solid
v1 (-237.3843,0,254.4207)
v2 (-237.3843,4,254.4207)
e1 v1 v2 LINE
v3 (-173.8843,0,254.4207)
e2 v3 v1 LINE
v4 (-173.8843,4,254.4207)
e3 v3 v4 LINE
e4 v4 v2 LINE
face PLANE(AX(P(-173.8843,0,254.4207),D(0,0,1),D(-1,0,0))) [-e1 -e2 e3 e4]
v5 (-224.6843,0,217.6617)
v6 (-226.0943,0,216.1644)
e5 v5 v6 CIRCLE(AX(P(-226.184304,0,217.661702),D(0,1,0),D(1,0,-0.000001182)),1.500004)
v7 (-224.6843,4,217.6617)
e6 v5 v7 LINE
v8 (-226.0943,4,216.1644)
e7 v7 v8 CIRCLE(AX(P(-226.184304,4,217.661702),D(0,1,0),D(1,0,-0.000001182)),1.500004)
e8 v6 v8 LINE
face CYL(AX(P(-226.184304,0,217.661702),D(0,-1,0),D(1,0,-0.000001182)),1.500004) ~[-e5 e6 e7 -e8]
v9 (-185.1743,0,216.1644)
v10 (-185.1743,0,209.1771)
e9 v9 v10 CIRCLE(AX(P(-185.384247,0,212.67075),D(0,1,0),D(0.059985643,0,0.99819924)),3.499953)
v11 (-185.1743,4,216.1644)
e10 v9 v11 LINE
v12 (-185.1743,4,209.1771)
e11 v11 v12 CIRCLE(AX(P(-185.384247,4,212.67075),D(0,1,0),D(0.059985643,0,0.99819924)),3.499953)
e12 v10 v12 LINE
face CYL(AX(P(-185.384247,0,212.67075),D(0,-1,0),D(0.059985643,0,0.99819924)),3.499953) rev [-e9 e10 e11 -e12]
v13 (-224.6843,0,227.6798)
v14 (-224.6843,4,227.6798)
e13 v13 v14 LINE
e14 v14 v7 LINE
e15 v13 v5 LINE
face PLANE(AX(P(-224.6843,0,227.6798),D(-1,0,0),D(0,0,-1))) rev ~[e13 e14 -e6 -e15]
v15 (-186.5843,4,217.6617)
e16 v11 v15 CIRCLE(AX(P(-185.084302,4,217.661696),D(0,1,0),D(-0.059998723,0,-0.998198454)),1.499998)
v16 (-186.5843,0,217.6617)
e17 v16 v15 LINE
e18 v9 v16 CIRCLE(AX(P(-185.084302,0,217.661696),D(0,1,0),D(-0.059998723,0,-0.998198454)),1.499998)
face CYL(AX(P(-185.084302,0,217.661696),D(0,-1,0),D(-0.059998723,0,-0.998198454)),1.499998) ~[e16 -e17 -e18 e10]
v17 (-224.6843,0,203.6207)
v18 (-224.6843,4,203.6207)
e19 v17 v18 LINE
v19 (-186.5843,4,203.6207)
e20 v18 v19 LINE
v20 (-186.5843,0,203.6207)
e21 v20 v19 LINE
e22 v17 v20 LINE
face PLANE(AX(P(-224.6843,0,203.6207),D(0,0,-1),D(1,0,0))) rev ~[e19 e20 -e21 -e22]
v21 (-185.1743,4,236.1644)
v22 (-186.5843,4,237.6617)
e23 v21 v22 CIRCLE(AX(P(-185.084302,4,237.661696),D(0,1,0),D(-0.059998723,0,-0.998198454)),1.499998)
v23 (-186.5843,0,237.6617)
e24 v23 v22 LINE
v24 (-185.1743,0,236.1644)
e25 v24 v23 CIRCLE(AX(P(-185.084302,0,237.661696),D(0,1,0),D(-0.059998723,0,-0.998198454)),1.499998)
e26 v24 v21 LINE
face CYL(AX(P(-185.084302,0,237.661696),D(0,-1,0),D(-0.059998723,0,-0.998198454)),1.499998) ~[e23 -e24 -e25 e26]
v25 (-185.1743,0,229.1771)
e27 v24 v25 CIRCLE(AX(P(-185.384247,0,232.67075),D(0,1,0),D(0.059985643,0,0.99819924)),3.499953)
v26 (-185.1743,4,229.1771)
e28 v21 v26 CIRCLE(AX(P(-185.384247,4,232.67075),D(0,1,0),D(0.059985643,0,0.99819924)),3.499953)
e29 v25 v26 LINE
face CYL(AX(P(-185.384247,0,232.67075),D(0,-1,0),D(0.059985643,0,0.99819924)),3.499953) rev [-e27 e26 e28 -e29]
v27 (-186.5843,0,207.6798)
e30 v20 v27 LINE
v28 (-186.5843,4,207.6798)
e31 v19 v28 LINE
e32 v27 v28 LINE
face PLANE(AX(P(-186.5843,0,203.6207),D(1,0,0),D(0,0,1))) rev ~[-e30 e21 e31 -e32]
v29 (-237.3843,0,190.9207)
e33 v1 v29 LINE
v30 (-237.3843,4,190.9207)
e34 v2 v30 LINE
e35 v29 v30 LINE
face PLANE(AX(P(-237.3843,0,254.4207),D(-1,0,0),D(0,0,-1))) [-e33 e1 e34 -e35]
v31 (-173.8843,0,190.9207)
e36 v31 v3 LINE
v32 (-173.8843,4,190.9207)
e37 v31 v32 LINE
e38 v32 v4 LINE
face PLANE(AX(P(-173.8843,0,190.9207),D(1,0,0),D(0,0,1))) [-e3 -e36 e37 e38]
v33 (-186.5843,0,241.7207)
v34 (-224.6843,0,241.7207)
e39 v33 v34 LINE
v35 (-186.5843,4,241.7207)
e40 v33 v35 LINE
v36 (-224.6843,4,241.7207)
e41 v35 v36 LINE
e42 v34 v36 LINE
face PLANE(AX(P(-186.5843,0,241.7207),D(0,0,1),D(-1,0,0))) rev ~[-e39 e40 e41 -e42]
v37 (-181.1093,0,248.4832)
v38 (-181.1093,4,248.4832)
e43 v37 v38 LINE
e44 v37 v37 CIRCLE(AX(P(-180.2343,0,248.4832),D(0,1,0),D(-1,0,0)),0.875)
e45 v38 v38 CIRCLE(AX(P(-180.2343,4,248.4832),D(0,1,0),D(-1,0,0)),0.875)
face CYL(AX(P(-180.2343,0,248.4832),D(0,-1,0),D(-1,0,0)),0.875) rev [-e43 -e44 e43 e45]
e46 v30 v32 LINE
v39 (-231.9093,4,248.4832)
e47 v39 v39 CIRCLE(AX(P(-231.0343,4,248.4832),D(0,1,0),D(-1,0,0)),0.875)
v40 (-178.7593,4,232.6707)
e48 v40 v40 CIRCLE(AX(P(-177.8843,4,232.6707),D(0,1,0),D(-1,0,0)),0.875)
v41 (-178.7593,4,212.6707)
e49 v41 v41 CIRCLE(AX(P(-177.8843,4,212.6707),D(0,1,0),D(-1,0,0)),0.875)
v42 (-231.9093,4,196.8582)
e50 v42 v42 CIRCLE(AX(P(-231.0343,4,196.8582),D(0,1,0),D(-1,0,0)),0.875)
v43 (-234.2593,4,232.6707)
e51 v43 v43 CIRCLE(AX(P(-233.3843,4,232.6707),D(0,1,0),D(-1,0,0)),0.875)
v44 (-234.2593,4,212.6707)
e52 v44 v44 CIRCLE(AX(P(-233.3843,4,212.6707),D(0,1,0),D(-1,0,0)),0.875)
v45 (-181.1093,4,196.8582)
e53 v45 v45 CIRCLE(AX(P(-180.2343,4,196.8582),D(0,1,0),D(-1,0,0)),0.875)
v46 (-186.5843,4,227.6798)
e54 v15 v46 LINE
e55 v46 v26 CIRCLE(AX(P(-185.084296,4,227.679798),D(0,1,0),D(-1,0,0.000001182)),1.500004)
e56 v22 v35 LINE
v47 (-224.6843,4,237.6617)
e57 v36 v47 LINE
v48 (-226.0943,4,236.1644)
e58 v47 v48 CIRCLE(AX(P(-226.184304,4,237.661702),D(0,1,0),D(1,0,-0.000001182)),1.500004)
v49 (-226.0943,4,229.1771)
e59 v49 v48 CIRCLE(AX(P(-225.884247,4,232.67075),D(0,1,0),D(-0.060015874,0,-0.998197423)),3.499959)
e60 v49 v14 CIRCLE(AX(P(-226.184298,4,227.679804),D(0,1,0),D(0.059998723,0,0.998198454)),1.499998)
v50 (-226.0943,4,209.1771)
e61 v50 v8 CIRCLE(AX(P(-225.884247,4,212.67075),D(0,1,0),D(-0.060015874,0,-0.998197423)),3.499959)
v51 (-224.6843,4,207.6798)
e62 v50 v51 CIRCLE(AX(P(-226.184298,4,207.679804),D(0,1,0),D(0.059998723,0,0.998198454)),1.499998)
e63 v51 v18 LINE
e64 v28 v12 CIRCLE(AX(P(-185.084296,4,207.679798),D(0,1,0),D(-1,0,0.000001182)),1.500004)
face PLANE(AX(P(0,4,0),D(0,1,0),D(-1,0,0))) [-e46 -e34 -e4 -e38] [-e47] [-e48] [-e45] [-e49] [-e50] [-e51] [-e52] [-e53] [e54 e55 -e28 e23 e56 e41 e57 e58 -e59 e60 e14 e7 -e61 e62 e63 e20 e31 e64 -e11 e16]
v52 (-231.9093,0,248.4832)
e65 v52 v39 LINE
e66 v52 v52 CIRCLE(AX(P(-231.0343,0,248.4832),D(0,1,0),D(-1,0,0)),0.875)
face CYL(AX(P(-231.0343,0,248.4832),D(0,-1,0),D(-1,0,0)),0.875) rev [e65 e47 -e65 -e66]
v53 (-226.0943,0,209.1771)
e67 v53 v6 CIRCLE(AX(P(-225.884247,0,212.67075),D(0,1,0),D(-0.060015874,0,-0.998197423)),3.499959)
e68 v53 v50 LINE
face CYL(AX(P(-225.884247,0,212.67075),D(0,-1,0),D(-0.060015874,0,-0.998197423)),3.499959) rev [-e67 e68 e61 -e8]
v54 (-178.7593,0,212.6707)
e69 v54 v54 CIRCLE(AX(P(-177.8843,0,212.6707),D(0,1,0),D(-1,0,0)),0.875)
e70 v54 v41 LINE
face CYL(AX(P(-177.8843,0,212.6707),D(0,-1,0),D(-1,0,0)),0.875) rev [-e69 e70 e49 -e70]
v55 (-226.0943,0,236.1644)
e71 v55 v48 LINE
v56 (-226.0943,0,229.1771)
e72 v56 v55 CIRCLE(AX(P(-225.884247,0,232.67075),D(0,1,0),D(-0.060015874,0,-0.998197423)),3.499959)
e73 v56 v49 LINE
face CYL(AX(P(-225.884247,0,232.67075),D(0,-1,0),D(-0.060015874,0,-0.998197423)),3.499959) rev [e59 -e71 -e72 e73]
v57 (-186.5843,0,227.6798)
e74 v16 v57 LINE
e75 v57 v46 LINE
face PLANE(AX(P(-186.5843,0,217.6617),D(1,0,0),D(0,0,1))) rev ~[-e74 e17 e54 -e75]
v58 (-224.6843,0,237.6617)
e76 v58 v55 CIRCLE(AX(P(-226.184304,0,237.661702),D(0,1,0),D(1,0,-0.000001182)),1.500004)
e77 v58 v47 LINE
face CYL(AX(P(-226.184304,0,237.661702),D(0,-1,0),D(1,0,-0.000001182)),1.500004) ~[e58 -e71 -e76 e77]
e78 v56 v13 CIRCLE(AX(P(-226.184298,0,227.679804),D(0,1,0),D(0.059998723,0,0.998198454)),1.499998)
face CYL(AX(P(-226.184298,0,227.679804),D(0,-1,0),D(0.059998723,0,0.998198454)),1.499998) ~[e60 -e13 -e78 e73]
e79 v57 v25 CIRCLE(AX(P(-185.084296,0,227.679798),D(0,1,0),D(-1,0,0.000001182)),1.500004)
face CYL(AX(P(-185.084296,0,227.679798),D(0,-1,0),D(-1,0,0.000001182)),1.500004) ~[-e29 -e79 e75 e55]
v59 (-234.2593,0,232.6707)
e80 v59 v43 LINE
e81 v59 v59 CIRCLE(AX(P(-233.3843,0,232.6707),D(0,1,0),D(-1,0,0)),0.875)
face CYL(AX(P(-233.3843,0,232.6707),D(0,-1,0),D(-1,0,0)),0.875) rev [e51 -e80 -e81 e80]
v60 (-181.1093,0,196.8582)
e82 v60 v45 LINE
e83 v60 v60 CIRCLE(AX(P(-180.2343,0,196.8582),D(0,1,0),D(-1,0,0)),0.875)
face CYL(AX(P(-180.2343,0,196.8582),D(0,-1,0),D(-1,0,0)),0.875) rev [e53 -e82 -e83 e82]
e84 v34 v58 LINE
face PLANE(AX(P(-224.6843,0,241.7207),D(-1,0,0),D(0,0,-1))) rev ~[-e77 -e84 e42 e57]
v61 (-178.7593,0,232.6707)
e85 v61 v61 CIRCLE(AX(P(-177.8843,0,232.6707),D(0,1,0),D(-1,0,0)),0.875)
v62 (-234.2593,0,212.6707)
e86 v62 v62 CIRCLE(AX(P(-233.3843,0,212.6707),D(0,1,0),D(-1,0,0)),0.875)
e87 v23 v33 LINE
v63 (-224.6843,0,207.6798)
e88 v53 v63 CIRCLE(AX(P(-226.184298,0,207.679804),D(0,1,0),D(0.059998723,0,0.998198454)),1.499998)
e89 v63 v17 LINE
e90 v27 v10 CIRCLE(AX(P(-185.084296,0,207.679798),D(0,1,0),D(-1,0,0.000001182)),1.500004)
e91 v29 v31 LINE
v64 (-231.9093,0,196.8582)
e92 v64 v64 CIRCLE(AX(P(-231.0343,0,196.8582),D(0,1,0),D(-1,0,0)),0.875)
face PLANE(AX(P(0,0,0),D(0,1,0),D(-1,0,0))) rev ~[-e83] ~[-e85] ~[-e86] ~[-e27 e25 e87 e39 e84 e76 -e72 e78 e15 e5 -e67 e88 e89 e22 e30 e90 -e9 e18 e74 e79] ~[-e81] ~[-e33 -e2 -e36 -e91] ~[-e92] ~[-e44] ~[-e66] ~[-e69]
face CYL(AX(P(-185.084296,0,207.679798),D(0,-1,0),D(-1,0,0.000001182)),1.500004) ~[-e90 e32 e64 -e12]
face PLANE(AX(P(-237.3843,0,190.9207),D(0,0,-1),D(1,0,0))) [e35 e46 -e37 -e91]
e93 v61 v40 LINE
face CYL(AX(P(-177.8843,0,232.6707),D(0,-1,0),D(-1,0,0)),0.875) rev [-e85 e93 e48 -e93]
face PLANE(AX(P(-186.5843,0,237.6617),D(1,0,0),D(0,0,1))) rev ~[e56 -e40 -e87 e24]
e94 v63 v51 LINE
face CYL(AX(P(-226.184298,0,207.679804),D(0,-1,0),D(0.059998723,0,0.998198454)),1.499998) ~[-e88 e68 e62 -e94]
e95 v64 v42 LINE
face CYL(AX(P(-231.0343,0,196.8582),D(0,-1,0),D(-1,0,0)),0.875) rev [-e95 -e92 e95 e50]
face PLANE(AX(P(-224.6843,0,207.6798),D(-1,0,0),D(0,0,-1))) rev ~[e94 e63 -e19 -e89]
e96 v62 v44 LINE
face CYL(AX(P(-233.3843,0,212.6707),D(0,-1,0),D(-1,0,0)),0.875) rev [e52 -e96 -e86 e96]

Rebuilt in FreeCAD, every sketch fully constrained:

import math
import FreeCAD as App
import Part
import Sketcher
from FreeCAD import Vector
Q = App.Units.Quantity

doc = App.newDocument("Part")
params = doc.addObject("Spreadsheet::Sheet", "Params")
for row, (alias, value) in enumerate([
    ("sketch1_width", "2.5 in"),
    ("sketch1_width2", "1.5 in"),
    ("pad1_length", "4 mm"),
], start=1):
    params.set(f"A{row}", alias)
    params.set(f"B{row}", "=" + value)
    params.setAlias(f"B{row}", alias)

body = doc.addObject("PartDesign::Body", "Body")

# Sketch on XZ plane
sketch1 = doc.addObject("Sketcher::SketchObject", "Sketch")
body.addObject(sketch1)
sketch1.AttachmentSupport = (doc.XZ_Plane, [""])
sketch1.MapMode = "FlatFace"
sketch1.addGeometry(Part.LineSegment(Vector(-237.4, 254.4, 0), Vector(-173.9, 254.4, 0)), False)
sketch1.addGeometry(Part.LineSegment(Vector(-173.9, 254.4, 0), Vector(-173.9, 190.9, 0)), False)
sketch1.addGeometry(Part.LineSegment(Vector(-173.9, 190.9, 0), Vector(-237.4, 190.9, 0)), False)
sketch1.addGeometry(Part.LineSegment(Vector(-237.4, 190.9, 0), Vector(-237.4, 254.4, 0)), False)
sketch1.addGeometry(Part.Circle(Vector(-180.2, 196.9, 0), Vector(0, 0, 1), 0.9), False)
sketch1.addGeometry(Part.Circle(Vector(-177.9, 212.7, 0), Vector(0, 0, 1), 0.9), False)
sketch1.addGeometry(Part.Circle(Vector(-231, 196.9, 0), Vector(0, 0, 1), 0.9), False)
sketch1.addGeometry(Part.Circle(Vector(-233.4, 212.7, 0), Vector(0, 0, 1), 0.9), False)
sketch1.addGeometry(Part.Circle(Vector(-177.9, 232.7, 0), Vector(0, 0, 1), 0.9), False)
sketch1.addGeometry(Part.Circle(Vector(-180.2, 248.5, 0), Vector(0, 0, 1), 0.9), False)
sketch1.addGeometry(Part.LineSegment(Vector(-224.7, 207.7, 0), Vector(-224.7, 203.6, 0)), False)
sketch1.addGeometry(Part.LineSegment(Vector(-224.7, 203.6, 0), Vector(-186.6, 203.6, 0)), False)
sketch1.addGeometry(Part.LineSegment(Vector(-186.6, 203.6, 0), Vector(-186.6, 207.7, 0)), False)
sketch1.addGeometry(Part.ArcOfCircle(Part.Circle(Vector(-185.1, 207.7, 0), Vector(0, 0, 1), 1.5), math.radians(93), math.radians(180)), False)
sketch1.addGeometry(Part.ArcOfCircle(Part.Circle(Vector(-185.4, 212.7, 0), Vector(0, 0, 1), 3.5), math.radians(-87), math.radians(87)), False)
sketch1.addGeometry(Part.ArcOfCircle(Part.Circle(Vector(-185.1, 217.7, 0), Vector(0, 0, 1), 1.5), math.radians(180), math.radians(267)), False)
sketch1.addGeometry(Part.LineSegment(Vector(-186.6, 217.7, 0), Vector(-186.6, 227.7, 0)), False)
sketch1.addGeometry(Part.ArcOfCircle(Part.Circle(Vector(-185.1, 227.7, 0), Vector(0, 0, 1), 1.5), math.radians(93), math.radians(180)), False)
sketch1.addGeometry(Part.ArcOfCircle(Part.Circle(Vector(-185.4, 232.7, 0), Vector(0, 0, 1), 3.5), math.radians(-87), math.radians(87)), False)
sketch1.addGeometry(Part.ArcOfCircle(Part.Circle(Vector(-185.1, 237.7, 0), Vector(0, 0, 1), 1.5), math.radians(180), math.radians(267)), False)
sketch1.addGeometry(Part.LineSegment(Vector(-186.6, 237.7, 0), Vector(-186.6, 241.7, 0)), False)
sketch1.addGeometry(Part.LineSegment(Vector(-186.6, 241.7, 0), Vector(-224.7, 241.7, 0)), False)
sketch1.addGeometry(Part.LineSegment(Vector(-224.7, 241.7, 0), Vector(-224.7, 237.7, 0)), False)
sketch1.addGeometry(Part.ArcOfCircle(Part.Circle(Vector(-226.2, 237.7, 0), Vector(0, 0, 1), 1.5), math.radians(-87), math.radians(0)), False)
sketch1.addGeometry(Part.ArcOfCircle(Part.Circle(Vector(-225.9, 232.7, 0), Vector(0, 0, 1), 3.5), math.radians(93), math.radians(267)), False)
sketch1.addGeometry(Part.ArcOfCircle(Part.Circle(Vector(-226.2, 227.7, 0), Vector(0, 0, 1), 1.5), math.radians(0), math.radians(87)), False)
sketch1.addGeometry(Part.LineSegment(Vector(-224.7, 227.7, 0), Vector(-224.7, 217.7, 0)), False)
sketch1.addGeometry(Part.ArcOfCircle(Part.Circle(Vector(-226.2, 217.7, 0), Vector(0, 0, 1), 1.5), math.radians(-87), math.radians(0)), False)
sketch1.addGeometry(Part.ArcOfCircle(Part.Circle(Vector(-225.9, 212.7, 0), Vector(0, 0, 1), 3.5), math.radians(93), math.radians(267)), False)
sketch1.addGeometry(Part.ArcOfCircle(Part.Circle(Vector(-226.2, 207.7, 0), Vector(0, 0, 1), 1.5), math.radians(0), math.radians(87)), False)
sketch1.addGeometry(Part.Circle(Vector(-233.4, 232.7, 0), Vector(0, 0, 1), 0.9), False)
sketch1.addGeometry(Part.Circle(Vector(-231, 248.5, 0), Vector(0, 0, 1), 0.9), False)
sketch1.addConstraint(Sketcher.Constraint("Coincident", 0, 2, 1, 1))
sketch1.addConstraint(Sketcher.Constraint("Coincident", 1, 2, 2, 1))
sketch1.addConstraint(Sketcher.Constraint("Coincident", 2, 2, 3, 1))
sketch1.addConstraint(Sketcher.Constraint("Coincident", 3, 2, 0, 1))
sketch1.addConstraint(Sketcher.Constraint("Coincident", 10, 2, 11, 1))
sketch1.addConstraint(Sketcher.Constraint("Coincident", 11, 2, 12, 1))
sketch1.addConstraint(Sketcher.Constraint("Tangent", 12, 2, 13, 2))
sketch1.addConstraint(Sketcher.Constraint("Tangent", 13, 1, 14, 1))
sketch1.addConstraint(Sketcher.Constraint("Tangent", 14, 2, 15, 2))
sketch1.addConstraint(Sketcher.Constraint("Tangent", 15, 1, 16, 1))
sketch1.addConstraint(Sketcher.Constraint("Tangent", 16, 2, 17, 2))
sketch1.addConstraint(Sketcher.Constraint("Tangent", 17, 1, 18, 1))
sketch1.addConstraint(Sketcher.Constraint("Tangent", 18, 2, 19, 2))
sketch1.addConstraint(Sketcher.Constraint("Tangent", 19, 1, 20, 1))
sketch1.addConstraint(Sketcher.Constraint("Coincident", 20, 2, 21, 1))
sketch1.addConstraint(Sketcher.Constraint("Coincident", 21, 2, 22, 1))
sketch1.addConstraint(Sketcher.Constraint("Tangent", 22, 2, 23, 2))
sketch1.addConstraint(Sketcher.Constraint("Tangent", 23, 1, 24, 1))
sketch1.addConstraint(Sketcher.Constraint("Tangent", 24, 2, 25, 2))
sketch1.addConstraint(Sketcher.Constraint("Tangent", 25, 1, 26, 1))
sketch1.addConstraint(Sketcher.Constraint("Tangent", 26, 2, 27, 2))
sketch1.addConstraint(Sketcher.Constraint("Tangent", 27, 1, 28, 1))
sketch1.addConstraint(Sketcher.Constraint("Tangent", 28, 2, 29, 2))
sketch1.addConstraint(Sketcher.Constraint("Tangent", 29, 1, 10, 1))
sketch1.addConstraint(Sketcher.Constraint("Horizontal", 0))
sketch1.addConstraint(Sketcher.Constraint("Vertical", 1))
sketch1.addConstraint(Sketcher.Constraint("Horizontal", 2))
sketch1.addConstraint(Sketcher.Constraint("Vertical", 3))
sketch1.addConstraint(Sketcher.Constraint("Vertical", 10))
sketch1.addConstraint(Sketcher.Constraint("Horizontal", 11))
sketch1.addConstraint(Sketcher.Constraint("Vertical", 12))
sketch1.addConstraint(Sketcher.Constraint("Vertical", 16))
sketch1.addConstraint(Sketcher.Constraint("Vertical", 20))
sketch1.addConstraint(Sketcher.Constraint("Horizontal", 21))
sketch1.addConstraint(Sketcher.Constraint("Vertical", 22))
sketch1.addConstraint(Sketcher.Constraint("Vertical", 26))
sketch1.addConstraint(Sketcher.Constraint("Equal", 4, 5))
sketch1.addConstraint(Sketcher.Constraint("Equal", 5, 6))
sketch1.addConstraint(Sketcher.Constraint("Equal", 6, 7))
sketch1.addConstraint(Sketcher.Constraint("Equal", 7, 8))
sketch1.addConstraint(Sketcher.Constraint("Equal", 8, 9))
sketch1.addConstraint(Sketcher.Constraint("Equal", 13, 15))
sketch1.addConstraint(Sketcher.Constraint("Equal", 15, 17))
sketch1.addConstraint(Sketcher.Constraint("Equal", 14, 18))
sketch1.addConstraint(Sketcher.Constraint("Equal", 17, 19))
sketch1.addConstraint(Sketcher.Constraint("Equal", 19, 23))
sketch1.addConstraint(Sketcher.Constraint("Equal", 18, 24))
sketch1.addConstraint(Sketcher.Constraint("Equal", 23, 25))
sketch1.addConstraint(Sketcher.Constraint("Equal", 25, 27))
sketch1.addConstraint(Sketcher.Constraint("Equal", 24, 28))
sketch1.addConstraint(Sketcher.Constraint("Equal", 27, 29))
sketch1.addConstraint(Sketcher.Constraint("Equal", 9, 30))
sketch1.addConstraint(Sketcher.Constraint("Equal", 30, 31))
sketch1.addConstraint(Sketcher.Constraint("Horizontal", 4, 3, 6, 3))
sketch1.addConstraint(Sketcher.Constraint("Horizontal", 5, 3, 7, 3))
sketch1.addConstraint(Sketcher.Constraint("Horizontal", 7, 3, 14, 3))
sketch1.addConstraint(Sketcher.Constraint("Horizontal", 8, 3, 18, 3))
sketch1.addConstraint(Sketcher.Constraint("Horizontal", 19, 3, 23, 3))
sketch1.addConstraint(Sketcher.Constraint("Horizontal", 18, 3, 24, 3))
sketch1.addConstraint(Sketcher.Constraint("Horizontal", 17, 3, 25, 3))
sketch1.addConstraint(Sketcher.Constraint("Horizontal", 15, 3, 27, 3))
sketch1.addConstraint(Sketcher.Constraint("Horizontal", 14, 3, 28, 3))
sketch1.addConstraint(Sketcher.Constraint("Horizontal", 13, 3, 29, 3))
sketch1.addConstraint(Sketcher.Constraint("Horizontal", 24, 3, 30, 3))
sketch1.addConstraint(Sketcher.Constraint("Horizontal", 9, 3, 31, 3))
sketch1.addConstraint(Sketcher.Constraint("Vertical", 5, 3, 8, 3))
sketch1.addConstraint(Sketcher.Constraint("Vertical", 4, 3, 9, 3))
sketch1.addConstraint(Sketcher.Constraint("Vertical", 13, 3, 15, 3))
sketch1.addConstraint(Sketcher.Constraint("Vertical", 14, 3, 18, 3))
sketch1.addConstraint(Sketcher.Constraint("Vertical", 17, 3, 19, 3))
sketch1.addConstraint(Sketcher.Constraint("Vertical", 7, 3, 30, 3))
sketch1.addConstraint(Sketcher.Constraint("Vertical", 6, 3, 31, 3))
sketch1.addConstraint(Sketcher.Constraint("Equal", 2, 1))
sketch1.addConstraint(Sketcher.Constraint("Equal", 12, 20))
sketch1.addConstraint(Sketcher.Constraint("DistanceX", 0, 1, 0, 2, Q("2.5 in")))
sketch1.addConstraint(Sketcher.Constraint("DistanceX", 11, 1, 11, 2, Q("1.5 in")))
sketch1.addConstraint(Sketcher.Constraint("DistanceX", 6, 3, 4, 3, Q("2 in")))
sketch1.addConstraint(Sketcher.Constraint("Diameter", 4, Q("0.0689 in")))
sketch1.addConstraint(Sketcher.Constraint("Radius", 14, Q("0.1378 in")))
sketch1.addConstraint(Sketcher.Constraint("Radius", 13, 1.5))
sketch1.addConstraint(Sketcher.Constraint("DistanceX", 9, 3, 0, 2, Q("0.25 in")))
sketch1.addConstraint(Sketcher.Constraint("DistanceX", 6, 3, 10, 2, Q("0.25 in")))
sketch1.addConstraint(Sketcher.Constraint("DistanceY", 10, 2, 10, 1, Q("0.1598 in")))
sketch1.addConstraint(Sketcher.Constraint("DistanceY", 13, 3, 15, 3, Q("0.393 in")))
sketch1.addConstraint(Sketcher.Constraint("DistanceX", 13, 1, 5, 3, Q("0.287 in")))
sketch1.addConstraint(Sketcher.Constraint("DistanceX", 30, 3, 23, 1, Q("0.287 in")))
sketch1.addConstraint(Sketcher.Constraint("DistanceY", 16, 1, 16, 2, Q("0.3944094 in")))
sketch1.addConstraint(Sketcher.Constraint("DistanceY", -1, 1, 9, 3, Q("9.7828 in")))
sketch1.addConstraint(Sketcher.Constraint("DistanceX", 14, 3, -1, 1, Q("7.2986 in")))
sketch1.addConstraint(Sketcher.Constraint("DistanceY", -1, 1, 14, 2, Q("8.5104 in")))
sketch1.addConstraint(Sketcher.Constraint("DistanceY", 19, 3, 0, 2, Q("0.6598 in")))
sketch1.addConstraint(Sketcher.Constraint("DistanceY", -1, 1, 4, 3, 196.8582))
sketch1.setExpression("Constraints[74]", "Params.sketch1_width")
sketch1.setExpression("Constraints[75]", "Params.sketch1_width2")
pad1 = doc.addObject("PartDesign::Pad", "Pad")
body.addObject(pad1)
pad1.Profile = sketch1
pad1.setExpression("Length", "Params.pad1_length")
pad1.Reversed = True

doc.recompute()
